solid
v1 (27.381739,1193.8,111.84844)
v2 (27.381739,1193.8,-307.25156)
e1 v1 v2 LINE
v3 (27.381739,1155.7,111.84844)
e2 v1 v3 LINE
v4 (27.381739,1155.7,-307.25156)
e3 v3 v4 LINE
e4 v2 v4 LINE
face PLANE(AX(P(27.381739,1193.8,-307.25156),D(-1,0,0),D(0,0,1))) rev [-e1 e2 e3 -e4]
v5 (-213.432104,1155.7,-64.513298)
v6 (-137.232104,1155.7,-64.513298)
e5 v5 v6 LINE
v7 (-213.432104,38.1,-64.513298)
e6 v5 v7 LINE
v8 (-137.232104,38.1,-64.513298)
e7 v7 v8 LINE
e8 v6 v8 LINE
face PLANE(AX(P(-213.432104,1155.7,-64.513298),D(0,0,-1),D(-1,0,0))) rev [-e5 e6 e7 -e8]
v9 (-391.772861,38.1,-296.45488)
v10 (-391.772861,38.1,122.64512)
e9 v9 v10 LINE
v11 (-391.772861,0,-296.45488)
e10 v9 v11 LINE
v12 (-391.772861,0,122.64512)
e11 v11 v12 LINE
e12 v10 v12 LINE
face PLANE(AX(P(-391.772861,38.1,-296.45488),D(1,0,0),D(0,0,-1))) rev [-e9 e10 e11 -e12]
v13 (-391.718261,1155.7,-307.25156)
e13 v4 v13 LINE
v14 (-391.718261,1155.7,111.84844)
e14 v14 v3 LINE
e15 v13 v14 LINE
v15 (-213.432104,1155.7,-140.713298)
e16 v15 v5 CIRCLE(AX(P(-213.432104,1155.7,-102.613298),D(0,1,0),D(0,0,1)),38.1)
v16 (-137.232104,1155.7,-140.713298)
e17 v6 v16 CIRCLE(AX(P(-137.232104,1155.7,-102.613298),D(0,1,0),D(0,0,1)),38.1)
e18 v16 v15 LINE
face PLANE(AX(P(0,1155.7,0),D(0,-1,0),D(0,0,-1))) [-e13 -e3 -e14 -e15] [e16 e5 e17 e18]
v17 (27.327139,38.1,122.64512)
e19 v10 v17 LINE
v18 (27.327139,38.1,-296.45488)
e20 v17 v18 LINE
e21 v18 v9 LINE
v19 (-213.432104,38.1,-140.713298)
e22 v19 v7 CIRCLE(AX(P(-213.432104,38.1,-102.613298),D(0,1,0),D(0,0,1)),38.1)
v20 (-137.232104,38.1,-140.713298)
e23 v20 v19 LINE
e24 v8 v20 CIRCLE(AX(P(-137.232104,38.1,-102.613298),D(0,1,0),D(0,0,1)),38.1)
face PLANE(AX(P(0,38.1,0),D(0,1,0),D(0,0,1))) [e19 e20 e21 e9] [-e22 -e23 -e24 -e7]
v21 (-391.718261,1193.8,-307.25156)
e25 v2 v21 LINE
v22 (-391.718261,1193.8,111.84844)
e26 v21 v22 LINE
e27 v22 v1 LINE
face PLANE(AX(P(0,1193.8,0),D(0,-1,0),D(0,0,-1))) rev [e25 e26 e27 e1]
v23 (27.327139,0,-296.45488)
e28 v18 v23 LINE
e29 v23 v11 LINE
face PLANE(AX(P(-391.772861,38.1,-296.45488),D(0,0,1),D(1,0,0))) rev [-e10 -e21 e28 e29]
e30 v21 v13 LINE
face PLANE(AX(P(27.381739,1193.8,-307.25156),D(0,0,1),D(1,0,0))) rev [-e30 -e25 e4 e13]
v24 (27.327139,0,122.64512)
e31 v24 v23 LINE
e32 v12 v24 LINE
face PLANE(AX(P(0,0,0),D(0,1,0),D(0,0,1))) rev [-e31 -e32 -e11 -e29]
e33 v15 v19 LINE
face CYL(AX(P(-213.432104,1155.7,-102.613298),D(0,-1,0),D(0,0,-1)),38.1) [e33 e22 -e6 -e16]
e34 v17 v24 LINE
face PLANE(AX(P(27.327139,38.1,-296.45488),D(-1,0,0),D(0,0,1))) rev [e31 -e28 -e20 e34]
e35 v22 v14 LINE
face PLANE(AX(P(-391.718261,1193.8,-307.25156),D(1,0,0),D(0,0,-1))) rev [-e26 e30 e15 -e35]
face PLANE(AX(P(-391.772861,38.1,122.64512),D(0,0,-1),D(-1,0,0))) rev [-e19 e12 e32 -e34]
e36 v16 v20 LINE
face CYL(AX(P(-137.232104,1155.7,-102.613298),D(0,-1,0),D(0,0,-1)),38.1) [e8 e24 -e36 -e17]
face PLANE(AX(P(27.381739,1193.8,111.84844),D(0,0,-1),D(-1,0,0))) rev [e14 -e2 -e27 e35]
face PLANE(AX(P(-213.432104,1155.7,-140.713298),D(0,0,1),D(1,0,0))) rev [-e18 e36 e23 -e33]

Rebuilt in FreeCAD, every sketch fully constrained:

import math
import FreeCAD as App
import Part
import Sketcher
from FreeCAD import Vector
Q = App.Units.Quantity

doc = App.newDocument("Part")
body = doc.addObject("PartDesign::Body", "Body")

# Sketch on XZ plane
sketch1 = body.newObject("Sketcher::SketchObject", "Sketch")
sketch1.AttachmentSupport = (doc.getObject("XZ_Plane"), [""])
sketch1.MapMode = "FlatFace"
sketch1.addGeometry([
    Part.LineSegment(Vector(-392, -296, 0), Vector(-392, 123, 0)),
    Part.LineSegment(Vector(-392, 123, 0), Vector(27, 123, 0)),
    Part.LineSegment(Vector(27, 123, 0), Vector(27, -296, 0)),
    Part.LineSegment(Vector(27, -296, 0), Vector(-392, -296, 0)),
], False)
sketch1.addConstraint([
    Sketcher.Constraint("Coincident", 0, 2, 1, 1),
    Sketcher.Constraint("Coincident", 1, 2, 2, 1),
    Sketcher.Constraint("Coincident", 2, 2, 3, 1),
    Sketcher.Constraint("Coincident", 3, 2, 0, 1),
    Sketcher.Constraint("Vertical", 0),
    Sketcher.Constraint("Horizontal", 1),
    Sketcher.Constraint("Vertical", 2),
    Sketcher.Constraint("Horizontal", 3),
    Sketcher.Constraint("Equal", 3, 0),
    Sketcher.Constraint("DistanceX", 1, 1, 1, 2, Q("16.5 in")),
    Sketcher.Constraint("DistanceX", 0, 2, -1, 1, Q("391.772861 mm")),
    Sketcher.Constraint("DistanceY", -1, 1, 0, 2, Q("122.64512 mm")),
])
pad1 = body.newObject("PartDesign::Pad", "Pad")
pad1.Profile = sketch1
pad1.Length = Q("1.5 in")
pad1.Reversed = True

# Sketch on XZ plane
sketch2 = body.newObject("Sketcher::SketchObject", "Sketch001")
sketch2.AttachmentSupport = (doc.getObject("XZ_Plane"), [""])
sketch2.MapMode = "FlatFace"
sketch2.AttachmentOffset = App.Placement(Vector(0, 0, -1.5 * 25.4), App.Rotation())
sketch2.addGeometry([
    Part.LineSegment(Vector(-137, -141, 0), Vector(-213, -141, 0)),
    Part.ArcOfCircle(Part.Circle(Vector(-213, -103, 0), Vector(0, 0, 1), 38), math.radians(90), math.radians(270)),
    Part.LineSegment(Vector(-213, -65, 0), Vector(-137, -65, 0)),
    Part.ArcOfCircle(Part.Circle(Vector(-137, -103, 0), Vector(0, 0, 1), 38), math.radians(-90), math.radians(90)),
], False)
sketch2.addConstraint([
    Sketcher.Constraint("Tangent", 0, 2, 1, 2),
    Sketcher.Constraint("Tangent", 1, 1, 2, 1),
    Sketcher.Constraint("Tangent", 2, 2, 3, 2),
    Sketcher.Constraint("Tangent", 3, 1, 0, 1),
    Sketcher.Constraint("Horizontal", 0),
    Sketcher.Constraint("Horizontal", 2),
    Sketcher.Constraint("Radius", 1, Q("1.5 in")),
    Sketcher.Constraint("DistanceX", 0, 2, 0, 1, Q("3 in")),
    Sketcher.Constraint("DistanceY", 1, 3, -1, 1, Q("102.613298 mm")),
    Sketcher.Constraint("DistanceX", 1, 3, -1, 1, Q("213.432104 mm")),
])
pad2 = body.newObject("PartDesign::Pad", "Pad001")
pad2.Profile = sketch2
pad2.Length = Q("44 in")
pad2.Reversed = True

# Sketch on XZ plane
sketch3 = body.newObject("Sketcher::SketchObject", "Sketch002")
sketch3.AttachmentSupport = (doc.getObject("XZ_Plane"), [""])
sketch3.MapMode = "FlatFace"
sketch3.AttachmentOffset = App.Placement(Vector(0, 0, -45.5 * 25.4), App.Rotation())
sketch3.addGeometry([
    Part.LineSegment(Vector(-392, -307, 0), Vector(-392, 112, 0)),
    Part.LineSegment(Vector(-392, 112, 0), Vector(27, 112, 0)),
    Part.LineSegment(Vector(27, 112, 0), Vector(27, -307, 0)),
    Part.LineSegment(Vector(27, -307, 0), Vector(-392, -307, 0)),
], False)
sketch3.addConstraint([
    Sketcher.Constraint("Coincident", 0, 2, 1, 1),
    Sketcher.Constraint("Coincident", 1, 2, 2, 1),
    Sketcher.Constraint("Coincident", 2, 2, 3, 1),
    Sketcher.Constraint("Coincident", 3, 2, 0, 1),
    Sketcher.Constraint("Vertical", 0),
    Sketcher.Constraint("Horizontal", 1),
    Sketcher.Constraint("Vertical", 2),
    Sketcher.Constraint("Horizontal", 3),
    Sketcher.Constraint("Equal", 3, 0),
    Sketcher.Constraint("DistanceX", 1, 1, 1, 2, Q("16.5 in")),
    Sketcher.Constraint("DistanceX", 0, 2, -1, 1, Q("391.718261 mm")),
    Sketcher.Constraint("DistanceY", -1, 1, 0, 2, Q("111.84844 mm")),
])
pad3 = body.newObject("PartDesign::Pad", "Pad002")
pad3.Profile = sketch3
pad3.Length = Q("1.5 in")
pad3.Reversed = True

doc.recompute()
